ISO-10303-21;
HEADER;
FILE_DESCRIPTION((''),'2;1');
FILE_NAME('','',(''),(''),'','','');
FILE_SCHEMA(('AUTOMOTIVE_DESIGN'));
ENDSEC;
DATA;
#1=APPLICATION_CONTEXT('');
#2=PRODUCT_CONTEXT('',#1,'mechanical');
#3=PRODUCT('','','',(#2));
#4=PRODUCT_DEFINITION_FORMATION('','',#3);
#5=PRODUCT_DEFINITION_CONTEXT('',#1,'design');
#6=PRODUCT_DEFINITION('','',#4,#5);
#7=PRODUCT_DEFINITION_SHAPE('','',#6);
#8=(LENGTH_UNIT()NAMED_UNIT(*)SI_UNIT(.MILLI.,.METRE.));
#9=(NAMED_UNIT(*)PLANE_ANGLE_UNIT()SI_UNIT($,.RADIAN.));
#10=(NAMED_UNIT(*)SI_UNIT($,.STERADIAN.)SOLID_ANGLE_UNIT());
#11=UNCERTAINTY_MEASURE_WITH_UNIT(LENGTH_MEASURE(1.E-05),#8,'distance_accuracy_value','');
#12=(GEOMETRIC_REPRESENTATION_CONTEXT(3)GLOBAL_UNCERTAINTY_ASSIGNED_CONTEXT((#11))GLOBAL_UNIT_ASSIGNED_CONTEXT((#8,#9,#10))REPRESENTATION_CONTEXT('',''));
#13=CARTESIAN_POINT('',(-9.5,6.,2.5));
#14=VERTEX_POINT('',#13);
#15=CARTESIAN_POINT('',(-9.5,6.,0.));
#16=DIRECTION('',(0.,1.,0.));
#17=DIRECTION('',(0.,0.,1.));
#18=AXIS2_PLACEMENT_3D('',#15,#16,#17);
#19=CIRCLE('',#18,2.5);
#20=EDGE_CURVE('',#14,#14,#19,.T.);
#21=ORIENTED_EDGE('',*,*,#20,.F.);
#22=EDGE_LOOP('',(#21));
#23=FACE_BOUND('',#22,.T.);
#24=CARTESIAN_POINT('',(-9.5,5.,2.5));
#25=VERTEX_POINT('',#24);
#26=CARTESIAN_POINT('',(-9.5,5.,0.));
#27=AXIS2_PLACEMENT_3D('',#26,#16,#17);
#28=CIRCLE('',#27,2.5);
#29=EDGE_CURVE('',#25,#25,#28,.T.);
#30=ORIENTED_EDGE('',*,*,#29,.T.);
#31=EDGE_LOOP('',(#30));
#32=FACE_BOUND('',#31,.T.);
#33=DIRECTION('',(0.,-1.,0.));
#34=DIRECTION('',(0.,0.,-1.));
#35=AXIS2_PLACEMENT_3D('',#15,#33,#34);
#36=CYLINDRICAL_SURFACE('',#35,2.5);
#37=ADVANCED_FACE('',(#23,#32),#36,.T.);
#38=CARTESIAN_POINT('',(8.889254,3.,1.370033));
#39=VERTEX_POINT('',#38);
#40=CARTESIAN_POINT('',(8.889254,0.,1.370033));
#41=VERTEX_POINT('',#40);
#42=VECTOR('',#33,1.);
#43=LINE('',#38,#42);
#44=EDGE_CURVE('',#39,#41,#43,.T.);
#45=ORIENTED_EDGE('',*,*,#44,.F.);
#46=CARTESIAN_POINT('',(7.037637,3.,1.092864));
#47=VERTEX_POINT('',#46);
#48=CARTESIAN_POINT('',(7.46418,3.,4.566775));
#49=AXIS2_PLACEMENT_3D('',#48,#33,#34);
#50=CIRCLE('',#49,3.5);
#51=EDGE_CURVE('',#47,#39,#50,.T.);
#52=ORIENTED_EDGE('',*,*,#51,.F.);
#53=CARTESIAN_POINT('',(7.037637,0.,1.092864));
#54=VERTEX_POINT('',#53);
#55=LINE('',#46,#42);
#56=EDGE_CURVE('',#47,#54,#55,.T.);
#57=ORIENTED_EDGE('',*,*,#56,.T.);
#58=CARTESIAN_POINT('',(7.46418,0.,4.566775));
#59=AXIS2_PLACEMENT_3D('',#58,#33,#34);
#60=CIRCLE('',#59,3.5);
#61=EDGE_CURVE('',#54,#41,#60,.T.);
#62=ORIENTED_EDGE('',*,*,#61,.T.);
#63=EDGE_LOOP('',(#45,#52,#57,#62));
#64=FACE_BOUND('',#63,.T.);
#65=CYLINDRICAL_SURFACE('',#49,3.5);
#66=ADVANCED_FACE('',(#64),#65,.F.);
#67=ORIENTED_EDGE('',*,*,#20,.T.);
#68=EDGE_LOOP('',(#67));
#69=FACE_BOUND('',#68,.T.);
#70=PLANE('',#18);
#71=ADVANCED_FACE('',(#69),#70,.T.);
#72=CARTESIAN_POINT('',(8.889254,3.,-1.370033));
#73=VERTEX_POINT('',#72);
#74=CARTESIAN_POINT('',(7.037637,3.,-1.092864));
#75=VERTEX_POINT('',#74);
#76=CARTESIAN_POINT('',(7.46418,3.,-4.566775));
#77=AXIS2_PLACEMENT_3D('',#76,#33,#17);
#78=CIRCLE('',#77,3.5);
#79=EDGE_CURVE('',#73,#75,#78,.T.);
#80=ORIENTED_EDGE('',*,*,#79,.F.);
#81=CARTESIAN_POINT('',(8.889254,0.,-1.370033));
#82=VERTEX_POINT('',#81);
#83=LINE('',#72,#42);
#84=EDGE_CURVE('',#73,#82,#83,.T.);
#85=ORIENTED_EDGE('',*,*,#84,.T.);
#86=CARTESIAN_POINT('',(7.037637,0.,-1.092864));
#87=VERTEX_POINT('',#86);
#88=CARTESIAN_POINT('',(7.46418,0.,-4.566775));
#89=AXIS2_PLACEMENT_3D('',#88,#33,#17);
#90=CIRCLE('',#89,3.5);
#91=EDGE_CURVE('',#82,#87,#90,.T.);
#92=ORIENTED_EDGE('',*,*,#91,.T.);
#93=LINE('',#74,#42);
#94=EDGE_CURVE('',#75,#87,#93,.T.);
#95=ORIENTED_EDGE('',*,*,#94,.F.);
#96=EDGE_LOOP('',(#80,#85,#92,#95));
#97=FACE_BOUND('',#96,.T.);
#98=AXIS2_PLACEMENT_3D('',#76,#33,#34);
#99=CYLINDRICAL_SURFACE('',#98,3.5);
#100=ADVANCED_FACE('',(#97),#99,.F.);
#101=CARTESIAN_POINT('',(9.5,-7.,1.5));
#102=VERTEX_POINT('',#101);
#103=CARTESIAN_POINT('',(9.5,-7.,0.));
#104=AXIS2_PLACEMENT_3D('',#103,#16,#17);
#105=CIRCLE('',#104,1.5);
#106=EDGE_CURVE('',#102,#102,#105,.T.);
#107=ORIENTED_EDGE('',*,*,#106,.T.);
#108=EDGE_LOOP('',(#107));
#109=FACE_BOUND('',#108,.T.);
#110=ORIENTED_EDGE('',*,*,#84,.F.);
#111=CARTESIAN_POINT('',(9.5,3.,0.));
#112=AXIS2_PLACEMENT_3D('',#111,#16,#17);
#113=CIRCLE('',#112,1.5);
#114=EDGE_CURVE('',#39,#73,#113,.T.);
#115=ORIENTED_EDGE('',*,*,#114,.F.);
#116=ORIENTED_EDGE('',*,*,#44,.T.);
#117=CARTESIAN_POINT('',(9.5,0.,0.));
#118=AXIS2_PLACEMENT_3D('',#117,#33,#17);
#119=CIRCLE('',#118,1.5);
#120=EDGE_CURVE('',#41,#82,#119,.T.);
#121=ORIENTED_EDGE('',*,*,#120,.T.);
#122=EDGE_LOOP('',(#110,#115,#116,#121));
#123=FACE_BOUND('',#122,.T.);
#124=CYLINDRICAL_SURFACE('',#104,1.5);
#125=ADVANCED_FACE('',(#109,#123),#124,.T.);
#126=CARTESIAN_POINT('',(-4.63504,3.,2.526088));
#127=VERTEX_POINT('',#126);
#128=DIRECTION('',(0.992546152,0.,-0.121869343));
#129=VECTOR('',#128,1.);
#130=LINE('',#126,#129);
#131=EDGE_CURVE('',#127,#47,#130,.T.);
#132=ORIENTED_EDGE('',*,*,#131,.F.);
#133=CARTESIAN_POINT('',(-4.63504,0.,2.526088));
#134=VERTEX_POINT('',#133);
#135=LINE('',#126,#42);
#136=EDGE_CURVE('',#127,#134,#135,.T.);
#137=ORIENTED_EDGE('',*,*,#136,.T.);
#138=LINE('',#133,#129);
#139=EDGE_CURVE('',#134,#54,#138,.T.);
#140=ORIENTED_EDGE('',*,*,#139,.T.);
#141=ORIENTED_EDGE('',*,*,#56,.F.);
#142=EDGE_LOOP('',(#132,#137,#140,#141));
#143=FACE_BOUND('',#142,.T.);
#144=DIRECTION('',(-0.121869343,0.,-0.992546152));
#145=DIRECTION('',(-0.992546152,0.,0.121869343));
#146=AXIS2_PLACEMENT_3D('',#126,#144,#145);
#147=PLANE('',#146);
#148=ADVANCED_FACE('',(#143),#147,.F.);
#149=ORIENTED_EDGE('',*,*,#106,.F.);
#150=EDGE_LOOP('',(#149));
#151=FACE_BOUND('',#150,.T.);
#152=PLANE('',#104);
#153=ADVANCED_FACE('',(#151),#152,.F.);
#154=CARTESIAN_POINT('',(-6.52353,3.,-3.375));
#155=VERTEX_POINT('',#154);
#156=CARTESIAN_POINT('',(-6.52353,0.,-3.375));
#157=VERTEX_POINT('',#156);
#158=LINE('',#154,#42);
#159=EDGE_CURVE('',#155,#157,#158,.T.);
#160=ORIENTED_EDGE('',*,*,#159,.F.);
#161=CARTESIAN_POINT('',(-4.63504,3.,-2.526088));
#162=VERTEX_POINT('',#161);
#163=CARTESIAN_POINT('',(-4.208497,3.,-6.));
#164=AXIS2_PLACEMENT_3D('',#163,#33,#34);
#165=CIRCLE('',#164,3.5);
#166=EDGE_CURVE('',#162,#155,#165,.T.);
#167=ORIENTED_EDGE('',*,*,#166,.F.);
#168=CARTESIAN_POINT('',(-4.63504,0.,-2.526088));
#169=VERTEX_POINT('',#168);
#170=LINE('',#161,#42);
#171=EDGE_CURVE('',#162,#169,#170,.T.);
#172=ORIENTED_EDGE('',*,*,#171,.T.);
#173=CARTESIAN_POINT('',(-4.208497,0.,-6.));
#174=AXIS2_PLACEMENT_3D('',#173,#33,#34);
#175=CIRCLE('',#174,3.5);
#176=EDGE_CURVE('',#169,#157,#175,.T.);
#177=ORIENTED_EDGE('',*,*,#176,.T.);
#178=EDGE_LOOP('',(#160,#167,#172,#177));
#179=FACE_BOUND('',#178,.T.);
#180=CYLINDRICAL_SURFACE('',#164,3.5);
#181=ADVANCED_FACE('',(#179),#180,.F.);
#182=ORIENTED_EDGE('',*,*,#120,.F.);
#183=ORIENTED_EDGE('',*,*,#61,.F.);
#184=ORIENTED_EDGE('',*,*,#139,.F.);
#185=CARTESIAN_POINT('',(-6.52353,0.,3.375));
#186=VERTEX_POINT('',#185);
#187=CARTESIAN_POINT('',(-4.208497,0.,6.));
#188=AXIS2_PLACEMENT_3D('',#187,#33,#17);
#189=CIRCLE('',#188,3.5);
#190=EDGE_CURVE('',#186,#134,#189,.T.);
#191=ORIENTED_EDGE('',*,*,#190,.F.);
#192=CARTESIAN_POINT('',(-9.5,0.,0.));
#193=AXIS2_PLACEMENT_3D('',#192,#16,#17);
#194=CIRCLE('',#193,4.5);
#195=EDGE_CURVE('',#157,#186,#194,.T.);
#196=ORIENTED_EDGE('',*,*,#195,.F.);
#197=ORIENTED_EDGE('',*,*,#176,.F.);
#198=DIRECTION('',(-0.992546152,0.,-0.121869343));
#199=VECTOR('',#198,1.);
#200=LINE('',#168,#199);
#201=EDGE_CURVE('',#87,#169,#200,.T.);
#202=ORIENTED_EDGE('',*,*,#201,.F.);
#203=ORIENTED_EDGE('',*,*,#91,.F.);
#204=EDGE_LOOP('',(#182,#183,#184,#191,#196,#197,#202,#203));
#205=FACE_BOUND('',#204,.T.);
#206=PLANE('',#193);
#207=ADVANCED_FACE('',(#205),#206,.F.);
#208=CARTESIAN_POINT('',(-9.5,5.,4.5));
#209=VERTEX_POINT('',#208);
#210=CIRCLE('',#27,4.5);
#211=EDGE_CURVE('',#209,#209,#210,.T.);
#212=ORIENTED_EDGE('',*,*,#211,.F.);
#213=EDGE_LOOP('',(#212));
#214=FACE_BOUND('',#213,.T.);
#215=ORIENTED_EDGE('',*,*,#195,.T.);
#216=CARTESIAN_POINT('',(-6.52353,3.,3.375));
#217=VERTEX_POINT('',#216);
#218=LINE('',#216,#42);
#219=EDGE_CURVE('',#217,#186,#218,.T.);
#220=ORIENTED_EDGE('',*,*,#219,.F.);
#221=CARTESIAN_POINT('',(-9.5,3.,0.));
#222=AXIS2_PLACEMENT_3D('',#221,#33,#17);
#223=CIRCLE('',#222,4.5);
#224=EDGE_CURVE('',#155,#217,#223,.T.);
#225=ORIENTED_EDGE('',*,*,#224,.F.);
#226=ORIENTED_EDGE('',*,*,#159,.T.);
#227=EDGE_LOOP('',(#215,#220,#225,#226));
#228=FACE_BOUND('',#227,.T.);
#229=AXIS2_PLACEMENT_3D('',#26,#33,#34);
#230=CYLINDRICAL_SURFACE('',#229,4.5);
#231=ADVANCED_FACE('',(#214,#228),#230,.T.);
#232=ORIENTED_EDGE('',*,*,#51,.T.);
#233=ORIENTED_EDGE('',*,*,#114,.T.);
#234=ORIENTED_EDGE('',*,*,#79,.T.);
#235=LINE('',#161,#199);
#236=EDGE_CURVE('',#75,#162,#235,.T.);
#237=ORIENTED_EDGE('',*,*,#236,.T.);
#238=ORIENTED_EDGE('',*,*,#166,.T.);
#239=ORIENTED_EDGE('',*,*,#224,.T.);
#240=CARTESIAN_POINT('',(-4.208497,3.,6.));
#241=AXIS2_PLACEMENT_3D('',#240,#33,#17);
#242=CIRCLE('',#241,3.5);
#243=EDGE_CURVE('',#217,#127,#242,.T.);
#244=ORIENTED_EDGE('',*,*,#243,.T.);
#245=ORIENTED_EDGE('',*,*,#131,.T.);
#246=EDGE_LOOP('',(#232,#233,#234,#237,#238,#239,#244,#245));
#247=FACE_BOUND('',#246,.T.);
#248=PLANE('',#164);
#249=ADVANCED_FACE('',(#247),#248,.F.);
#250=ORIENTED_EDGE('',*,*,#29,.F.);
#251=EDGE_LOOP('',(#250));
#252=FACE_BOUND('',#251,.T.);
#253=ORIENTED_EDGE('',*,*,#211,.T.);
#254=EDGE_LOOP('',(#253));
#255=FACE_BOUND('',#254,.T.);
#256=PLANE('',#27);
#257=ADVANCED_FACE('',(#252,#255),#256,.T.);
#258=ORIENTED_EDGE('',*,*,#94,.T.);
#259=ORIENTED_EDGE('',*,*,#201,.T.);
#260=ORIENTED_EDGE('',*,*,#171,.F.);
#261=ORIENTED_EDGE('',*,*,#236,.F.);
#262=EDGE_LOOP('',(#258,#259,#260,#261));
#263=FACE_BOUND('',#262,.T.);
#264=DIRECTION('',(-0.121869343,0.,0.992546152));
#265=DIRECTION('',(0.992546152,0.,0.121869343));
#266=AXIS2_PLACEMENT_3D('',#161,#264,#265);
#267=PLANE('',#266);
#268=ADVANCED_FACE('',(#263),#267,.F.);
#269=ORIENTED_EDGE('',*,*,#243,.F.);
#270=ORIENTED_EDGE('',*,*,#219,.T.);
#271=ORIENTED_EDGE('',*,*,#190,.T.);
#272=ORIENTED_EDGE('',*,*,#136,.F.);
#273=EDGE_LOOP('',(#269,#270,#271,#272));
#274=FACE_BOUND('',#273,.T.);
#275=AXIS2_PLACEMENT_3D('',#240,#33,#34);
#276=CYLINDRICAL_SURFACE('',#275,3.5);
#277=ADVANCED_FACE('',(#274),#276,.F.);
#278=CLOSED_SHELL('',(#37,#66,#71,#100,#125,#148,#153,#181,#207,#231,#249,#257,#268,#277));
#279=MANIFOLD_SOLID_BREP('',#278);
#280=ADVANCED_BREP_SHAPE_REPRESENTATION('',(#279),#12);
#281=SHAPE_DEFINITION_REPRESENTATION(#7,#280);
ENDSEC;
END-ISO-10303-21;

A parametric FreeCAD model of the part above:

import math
import FreeCAD as App
import Part
import Sketcher
Q = App.Units.Quantity

doc = App.newDocument("Part")
body = doc.addObject("PartDesign::Body", "Body")

sketch1 = doc.addObject("Sketcher::SketchObject", "Sketch")
body.addObject(sketch1)
sketch1.AttachmentSupport = (doc.XZ_Plane, [""])
sketch1.MapMode = "FlatFace"
sketch1.addGeometry(Part.Circle(App.Vector(-9.5, 0, 0), App.Vector(0, 0, 1), 4.5), False)
sketch1.addConstraint(Sketcher.Constraint("PointOnObject", 0, 3, -1))
sketch1.addConstraint(Sketcher.Constraint("Diameter", 0, Q("9 mm")))
sketch1.addConstraint(Sketcher.Constraint("DistanceX", 0, 3, -1, 1, Q("9.5 mm")))
pad1 = doc.addObject("PartDesign::Pad", "Pad")
body.addObject(pad1)
pad1.Profile = sketch1
pad1.Length = 5
pad1.Reversed = True
body2 = doc.addObject("PartDesign::Body", "Body001")

sketch2 = doc.addObject("Sketcher::SketchObject", "Sketch001")
body2.addObject(sketch2)
sketch2.AttachmentSupport = (doc.getObject("XZ_Plane001"), [""])
sketch2.MapMode = "FlatFace"
sketch2.addGeometry(Part.Circle(App.Vector(9.5, 0, 0), App.Vector(0, 0, 1), 1.5), False)
sketch2.addConstraint(Sketcher.Constraint("PointOnObject", 0, 3, -1))
sketch2.addConstraint(Sketcher.Constraint("Diameter", 0, Q("3 mm")))
sketch2.addConstraint(Sketcher.Constraint("DistanceX", -1, 1, 0, 3, Q("9.5 mm")))
pad2 = doc.addObject("PartDesign::Pad", "Pad001")
body2.addObject(pad2)
pad2.Profile = sketch2
pad2.Type = "TwoLengths"
pad2.Length = 3
pad2.Length2 = 7
pad2.Reversed = True
body.AllowCompound = True
doc.recompute()

boolean = doc.addObject("PartDesign::Boolean", "Boolean")
body.addObject(boolean)
boolean.Type = "Fuse"
boolean.addObjects([body2])

sketch3 = doc.addObject("Sketcher::SketchObject", "Sketch002")
body.addObject(sketch3)
sketch3.AttachmentSupport = (doc.XZ_Plane, [""])
sketch3.MapMode = "FlatFace"
sketch3.addGeometry(Part.LineSegment(App.Vector(7, -1.1, 0), App.Vector(-4.6, -2.5, 0)), False)
sketch3.addGeometry(Part.ArcOfCircle(Part.Circle(App.Vector(-4.2, -6, 0), App.Vector(0, 0, 1), 3.5), math.radians(97), math.radians(131)), False)
sketch3.addGeometry(Part.ArcOfCircle(Part.Circle(App.Vector(-9.5, 0, 0), App.Vector(0, 0, 1), 4.5), math.radians(-49), math.radians(49)), False)
sketch3.addGeometry(Part.ArcOfCircle(Part.Circle(App.Vector(-4.2, 6, 0), App.Vector(0, 0, 1), 3.5), math.radians(-131), math.radians(-97)), False)
sketch3.addGeometry(Part.LineSegment(App.Vector(-4.6, 2.5, 0), App.Vector(7, 1.1, 0)), False)
sketch3.addGeometry(Part.ArcOfCircle(Part.Circle(App.Vector(7.5, 4.6, 0), App.Vector(0, 0, 1), 3.5), math.radians(-97), math.radians(-66)), False)
sketch3.addGeometry(Part.ArcOfCircle(Part.Circle(App.Vector(9.5, 0, 0), App.Vector(0, 0, 1), 1.5), math.radians(114), math.radians(246)), False)
sketch3.addGeometry(Part.ArcOfCircle(Part.Circle(App.Vector(7.5, -4.6, 0), App.Vector(0, 0, 1), 3.5), math.radians(66), math.radians(97)), False)
sketch3.addConstraint(Sketcher.Constraint("Tangent", 0, 2, 1, 1))
sketch3.addConstraint(Sketcher.Constraint("Tangent", 1, 2, 2, 1))
sketch3.addConstraint(Sketcher.Constraint("Tangent", 2, 2, 3, 1))
sketch3.addConstraint(Sketcher.Constraint("Tangent", 3, 2, 4, 1))
sketch3.addConstraint(Sketcher.Constraint("Tangent", 4, 2, 5, 1))
sketch3.addConstraint(Sketcher.Constraint("Tangent", 5, 2, 6, 1))
sketch3.addConstraint(Sketcher.Constraint("Tangent", 6, 2, 7, 1))
sketch3.addConstraint(Sketcher.Constraint("Tangent", 7, 2, 0, 1))
sketch3.addConstraint(Sketcher.Constraint("Equal", 1, 3))
sketch3.addConstraint(Sketcher.Constraint("Equal", 3, 5))
sketch3.addConstraint(Sketcher.Constraint("Equal", 5, 7))
sketch3.addConstraint(Sketcher.Constraint("Symmetric", 2, 3, 6, 3, -1, 1))
sketch3.addConstraint(Sketcher.Constraint("Symmetric", 1, 3, 3, 3, -1))
sketch3.addConstraint(Sketcher.Constraint("Vertical", 5, 3, 7, 3))
sketch3.addConstraint(Sketcher.Constraint("Radius", 1, Q("3.5 mm")))
sketch3.addConstraint(Sketcher.Constraint("Radius", 2, Q("4.5 mm")))
sketch3.addConstraint(Sketcher.Constraint("Radius", 6, Q("1.5 mm")))
sketch3.addConstraint(Sketcher.Constraint("Angle", 0, Q("-173 deg")))
sketch3.addConstraint(Sketcher.Constraint("DistanceY", 1, 3, -1, 1, Q("6 mm")))
sketch3.addConstraint(Sketcher.Constraint("DistanceX", 2, 3, 6, 3, Q("19 mm")))
pad3 = doc.addObject("PartDesign::Pad", "Pad002")
body.addObject(pad3)
pad3.Profile = sketch3
pad3.Length = 3
pad3.Reversed = True

sketch4 = doc.addObject("Sketcher::SketchObject", "Sketch003")
body.addObject(sketch4)
sketch4.AttachmentSupport = (doc.XZ_Plane, [""])
sketch4.MapMode = "FlatFace"
sketch4.AttachmentOffset = App.Placement(App.Vector(0, 0, -5), App.Rotation())
sketch4.addGeometry(Part.Circle(App.Vector(-9.5, 0, 0), App.Vector(0, 0, 1), 2.5), False)
sketch4.addConstraint(Sketcher.Constraint("PointOnObject", 0, 3, -1))
sketch4.addConstraint(Sketcher.Constraint("Diameter", 0, Q("5 mm")))
sketch4.addConstraint(Sketcher.Constraint("DistanceX", 0, 3, -1, 1, Q("9.5 mm")))
pad4 = doc.addObject("PartDesign::Pad", "Pad003")
body.addObject(pad4)
pad4.Profile = sketch4
pad4.Length = 1
pad4.Reversed = True

doc.recompute()
